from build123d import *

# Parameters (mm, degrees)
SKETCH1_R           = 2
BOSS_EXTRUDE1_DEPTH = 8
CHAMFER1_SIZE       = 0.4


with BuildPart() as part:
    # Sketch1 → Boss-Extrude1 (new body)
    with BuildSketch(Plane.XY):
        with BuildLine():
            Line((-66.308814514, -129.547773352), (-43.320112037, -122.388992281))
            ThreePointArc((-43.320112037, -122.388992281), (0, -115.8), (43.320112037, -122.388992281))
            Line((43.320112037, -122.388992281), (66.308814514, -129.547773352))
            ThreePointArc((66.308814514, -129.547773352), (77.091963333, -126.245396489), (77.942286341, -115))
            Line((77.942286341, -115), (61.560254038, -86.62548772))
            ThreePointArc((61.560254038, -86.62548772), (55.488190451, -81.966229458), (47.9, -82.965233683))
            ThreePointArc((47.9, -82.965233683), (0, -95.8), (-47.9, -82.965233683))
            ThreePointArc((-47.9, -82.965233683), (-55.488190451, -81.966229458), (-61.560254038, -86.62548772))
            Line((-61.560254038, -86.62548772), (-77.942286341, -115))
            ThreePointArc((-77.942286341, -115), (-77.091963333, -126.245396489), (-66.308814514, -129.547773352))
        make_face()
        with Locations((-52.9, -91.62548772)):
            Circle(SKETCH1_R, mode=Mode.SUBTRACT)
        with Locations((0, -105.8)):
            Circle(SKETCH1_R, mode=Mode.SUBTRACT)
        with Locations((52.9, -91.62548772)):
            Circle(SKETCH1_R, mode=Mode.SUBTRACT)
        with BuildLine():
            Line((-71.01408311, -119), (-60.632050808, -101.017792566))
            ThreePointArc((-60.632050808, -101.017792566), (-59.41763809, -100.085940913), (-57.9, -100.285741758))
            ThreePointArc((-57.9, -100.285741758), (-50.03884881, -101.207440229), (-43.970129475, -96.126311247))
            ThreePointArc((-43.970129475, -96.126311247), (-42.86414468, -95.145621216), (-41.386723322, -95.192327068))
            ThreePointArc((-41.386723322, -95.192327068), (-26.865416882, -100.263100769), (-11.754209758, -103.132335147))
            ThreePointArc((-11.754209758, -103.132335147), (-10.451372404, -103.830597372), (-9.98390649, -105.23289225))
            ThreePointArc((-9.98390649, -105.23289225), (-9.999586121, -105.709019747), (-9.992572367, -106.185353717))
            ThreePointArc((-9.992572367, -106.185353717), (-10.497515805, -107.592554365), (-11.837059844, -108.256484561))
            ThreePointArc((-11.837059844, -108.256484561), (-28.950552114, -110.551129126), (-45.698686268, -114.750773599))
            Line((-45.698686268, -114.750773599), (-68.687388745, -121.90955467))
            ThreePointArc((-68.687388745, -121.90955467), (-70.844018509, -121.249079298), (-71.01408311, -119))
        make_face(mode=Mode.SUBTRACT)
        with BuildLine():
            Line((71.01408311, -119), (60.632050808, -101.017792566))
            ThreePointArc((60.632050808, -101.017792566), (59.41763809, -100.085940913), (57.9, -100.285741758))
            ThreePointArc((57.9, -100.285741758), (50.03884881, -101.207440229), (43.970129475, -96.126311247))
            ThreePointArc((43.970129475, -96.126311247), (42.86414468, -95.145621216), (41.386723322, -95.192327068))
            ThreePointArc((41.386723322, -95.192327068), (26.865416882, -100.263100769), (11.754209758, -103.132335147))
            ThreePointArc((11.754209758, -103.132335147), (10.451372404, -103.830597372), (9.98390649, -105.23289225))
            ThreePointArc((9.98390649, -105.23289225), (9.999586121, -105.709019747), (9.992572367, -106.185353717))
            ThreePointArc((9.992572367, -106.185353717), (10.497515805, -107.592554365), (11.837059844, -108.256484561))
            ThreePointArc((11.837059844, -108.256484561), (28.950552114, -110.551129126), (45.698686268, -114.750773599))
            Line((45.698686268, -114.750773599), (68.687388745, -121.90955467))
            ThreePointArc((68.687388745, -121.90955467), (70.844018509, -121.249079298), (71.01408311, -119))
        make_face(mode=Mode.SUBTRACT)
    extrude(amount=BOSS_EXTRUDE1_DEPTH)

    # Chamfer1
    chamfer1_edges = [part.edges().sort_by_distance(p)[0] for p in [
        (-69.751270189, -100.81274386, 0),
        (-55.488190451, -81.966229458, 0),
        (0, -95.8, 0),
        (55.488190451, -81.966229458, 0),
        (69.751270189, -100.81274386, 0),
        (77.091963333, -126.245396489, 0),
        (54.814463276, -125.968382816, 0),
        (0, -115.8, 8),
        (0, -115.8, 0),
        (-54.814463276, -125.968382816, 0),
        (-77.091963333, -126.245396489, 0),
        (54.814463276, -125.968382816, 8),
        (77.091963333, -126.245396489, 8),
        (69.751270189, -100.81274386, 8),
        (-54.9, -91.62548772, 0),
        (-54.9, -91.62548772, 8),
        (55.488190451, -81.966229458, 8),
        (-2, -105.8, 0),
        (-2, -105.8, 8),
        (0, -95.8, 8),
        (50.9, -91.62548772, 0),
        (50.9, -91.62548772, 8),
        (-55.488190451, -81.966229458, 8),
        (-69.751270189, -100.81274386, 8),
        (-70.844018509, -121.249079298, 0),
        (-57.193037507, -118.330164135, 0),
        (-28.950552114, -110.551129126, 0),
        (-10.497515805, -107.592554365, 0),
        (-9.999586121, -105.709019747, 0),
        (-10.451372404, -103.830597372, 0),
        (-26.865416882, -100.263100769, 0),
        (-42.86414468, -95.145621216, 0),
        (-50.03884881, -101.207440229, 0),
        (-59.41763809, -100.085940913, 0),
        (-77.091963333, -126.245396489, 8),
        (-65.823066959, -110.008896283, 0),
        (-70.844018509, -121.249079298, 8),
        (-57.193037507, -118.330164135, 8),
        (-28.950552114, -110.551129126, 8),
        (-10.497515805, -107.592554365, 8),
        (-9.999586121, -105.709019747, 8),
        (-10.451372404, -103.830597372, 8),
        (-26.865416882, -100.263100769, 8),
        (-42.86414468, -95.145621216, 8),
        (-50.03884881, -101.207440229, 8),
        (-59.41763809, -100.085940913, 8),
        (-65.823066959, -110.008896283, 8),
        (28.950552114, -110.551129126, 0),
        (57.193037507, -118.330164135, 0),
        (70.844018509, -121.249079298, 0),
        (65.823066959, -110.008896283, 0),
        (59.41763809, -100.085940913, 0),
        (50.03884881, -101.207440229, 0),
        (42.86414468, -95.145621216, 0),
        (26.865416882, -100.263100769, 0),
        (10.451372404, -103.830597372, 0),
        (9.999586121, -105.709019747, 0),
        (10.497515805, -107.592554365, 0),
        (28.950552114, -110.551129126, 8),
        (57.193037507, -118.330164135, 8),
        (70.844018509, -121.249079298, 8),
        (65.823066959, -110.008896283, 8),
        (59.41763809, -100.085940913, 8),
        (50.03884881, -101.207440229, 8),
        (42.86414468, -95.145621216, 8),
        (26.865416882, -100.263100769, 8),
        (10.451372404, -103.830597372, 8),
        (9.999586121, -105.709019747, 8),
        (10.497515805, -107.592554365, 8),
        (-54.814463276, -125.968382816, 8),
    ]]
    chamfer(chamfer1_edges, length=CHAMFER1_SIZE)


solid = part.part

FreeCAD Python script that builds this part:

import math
import FreeCAD as App
import Part
import Sketcher

V = App.Vector
Q = App.Units.Quantity


def edges_at(feature, points):
    """Names of the edges that pass closest to the given points."""
    edges = feature.Shape.Edges
    near = lambda p: min(range(len(edges)), key=lambda i: edges[i].distToShape(Part.Vertex(*p))[0])
    return sorted({f"Edge{near(p) + 1}" for p in points})

doc = App.newDocument("Part")
body = doc.addObject("PartDesign::Body", "Body")

# Sketch on XY plane
sketch1 = body.newObject("Sketcher::SketchObject", "Sketch")
sketch1.AttachmentSupport = (doc.getObject("XY_Plane"), [""])
sketch1.MapMode = "FlatFace"
sketch1.addGeometry([
    Part.LineSegment(V(-66.3, -129.5, 0), V(-43.3, -122.4, 0)),  # 0
    Part.ArcOfCircle(Part.Circle(V(0, -261.5, 0), V(0, 0, 1), 145.7), math.radians(73), math.radians(107)),  # 1
    Part.LineSegment(V(43.3, -122.4, 0), V(66.3, -129.5, 0)),  # 2
    Part.ArcOfCircle(Part.Circle(V(69.3, -120, 0), V(0, 0, 1), 10), math.radians(-107), math.radians(30)),  # 3
    Part.LineSegment(V(77.9, -115, 0), V(61.6, -86.6, 0)),  # 4
    Part.ArcOfCircle(Part.Circle(V(52.9, -91.6, 0), V(0, 0, 1), 10), math.radians(30), math.radians(120)),  # 5
    Part.ArcOfCircle(Part.Circle(V(0, 0, 0), V(0, 0, 1), 95.8), math.radians(-120), math.radians(-60)),  # 6
    Part.ArcOfCircle(Part.Circle(V(-52.9, -91.6, 0), V(0, 0, 1), 10), math.radians(60), math.radians(150)),  # 7
    Part.LineSegment(V(-61.6, -86.6, 0), V(-77.9, -115, 0)),  # 8
    Part.ArcOfCircle(Part.Circle(V(-69.3, -120, 0), V(0, 0, 1), 10), math.radians(150), math.radians(287)),  # 9
    Part.ArcOfCircle(Part.Circle(V(-69.3, -120, 0), V(0, 0, 1), 2), math.radians(150), math.radians(287)),  # 10
    Part.LineSegment(V(-71, -119, 0), V(-60.6, -101, 0)),  # 11
    Part.ArcOfCircle(Part.Circle(V(-58.9, -102, 0), V(0, 0, 1), 2), math.radians(60), math.radians(150)),  # 12
    Part.ArcOfCircle(Part.Circle(V(-52.9, -91.6, 0), V(0, 0, 1), 10), math.radians(-120), math.radians(-27)),  # 13
    Part.ArcOfCircle(Part.Circle(V(-42.2, -97, 0), V(0, 0, 1), 2), math.radians(67), math.radians(153)),  # 14
    Part.ArcOfCircle(Part.Circle(V(0, 0, 0), V(0, 0, 1), 103.8), math.radians(-113.5), math.radians(-96.5)),  # 15
    Part.ArcOfCircle(Part.Circle(V(-12, -105.1, 0), V(0, 0, 1), 2), math.radians(-3), math.radians(83)),  # 16
    Part.ArcOfCircle(Part.Circle(V(0, -105.8, 0), V(0, 0, 1), 10), math.radians(176.75), math.radians(182.21)),  # 17
    Part.ArcOfCircle(Part.Circle(V(-12, -106.3, 0), V(0, 0, 1), 2), math.radians(-86), math.radians(2)),  # 18
    Part.ArcOfCircle(Part.Circle(V(0, -261.5, 0), V(0, 0, 1), 153.7), math.radians(94.42), math.radians(107.3)),  # 19
    Part.LineSegment(V(-45.7, -114.8, 0), V(-68.7, -121.9, 0)),  # 20
    Part.LineSegment(V(60.6, -101, 0), V(71, -119, 0)),  # 21
    Part.ArcOfCircle(Part.Circle(V(69.3, -120, 0), V(0, 0, 1), 2), math.radians(-107), math.radians(30)),  # 22
    Part.LineSegment(V(68.7, -121.9, 0), V(45.7, -114.8, 0)),  # 23
    Part.ArcOfCircle(Part.Circle(V(0, -261.5, 0), V(0, 0, 1), 153.7), math.radians(72.7), math.radians(85.58)),  # 24
    Part.ArcOfCircle(Part.Circle(V(12, -106.3, 0), V(0, 0, 1), 2), math.radians(178), math.radians(266)),  # 25
    Part.ArcOfCircle(Part.Circle(V(0, -105.8, 0), V(0, 0, 1), 10), math.radians(-2.21), math.radians(3.25)),  # 26
    Part.ArcOfCircle(Part.Circle(V(12, -105.1, 0), V(0, 0, 1), 2), math.radians(97), math.radians(183)),  # 27
    Part.ArcOfCircle(Part.Circle(V(0, 0, 0), V(0, 0, 1), 103.8), math.radians(-83.5), math.radians(-66.5)),  # 28
    Part.ArcOfCircle(Part.Circle(V(42.2, -97, 0), V(0, 0, 1), 2), math.radians(27), math.radians(113)),  # 29
    Part.ArcOfCircle(Part.Circle(V(52.9, -91.6, 0), V(0, 0, 1), 10), math.radians(-153), math.radians(-60)),  # 30
    Part.ArcOfCircle(Part.Circle(V(58.9, -102, 0), V(0, 0, 1), 2), math.radians(30), math.radians(120)),  # 31
    Part.Circle(V(-52.9, -91.6, 0), V(0, 0, 1), 2),  # 32
    Part.Circle(V(0, -105.8, 0), V(0, 0, 1), 2),  # 33
    Part.Circle(V(52.9, -91.6, 0), V(0, 0, 1), 2),  # 34
], False)
sketch1.addConstraint([
    Sketcher.Constraint("Tangent", 0, 2, 1, 2),
    Sketcher.Constraint("Tangent", 1, 1, 2, 1),
    Sketcher.Constraint("Tangent", 2, 2, 3, 1),
    Sketcher.Constraint("Tangent", 3, 2, 4, 1),
    Sketcher.Constraint("Tangent", 4, 2, 5, 1),
    Sketcher.Constraint("Tangent", 5, 2, 6, 2),
    Sketcher.Constraint("Tangent", 6, 1, 7, 1),
    Sketcher.Constraint("Tangent", 7, 2, 8, 1),
    Sketcher.Constraint("Tangent", 8, 2, 9, 1),
    Sketcher.Constraint("Tangent", 9, 2, 0, 1),
    Sketcher.Constraint("Tangent", 10, 1, 11, 1),
    Sketcher.Constraint("Tangent", 11, 2, 12, 2),
    Sketcher.Constraint("Tangent", 12, 1, 13, 1),
    Sketcher.Constraint("Tangent", 13, 2, 14, 2),
    Sketcher.Constraint("Tangent", 14, 1, 15, 1),
    Sketcher.Constraint("Tangent", 15, 2, 16, 2),
    Sketcher.Constraint("Tangent", 16, 1, 17, 1),
    Sketcher.Constraint("Tangent", 17, 2, 18, 2),
    Sketcher.Constraint("Tangent", 18, 1, 19, 1),
    Sketcher.Constraint("Tangent", 19, 2, 20, 1),
    Sketcher.Constraint("Tangent", 20, 2, 10, 2),
    Sketcher.Constraint("Tangent", 21, 2, 22, 2),
    Sketcher.Constraint("Tangent", 22, 1, 23, 1),
    Sketcher.Constraint("Tangent", 23, 2, 24, 1),
    Sketcher.Constraint("Tangent", 24, 2, 25, 2),
    Sketcher.Constraint("Tangent", 25, 1, 26, 1),
    Sketcher.Constraint("Tangent", 26, 2, 27, 2),
    Sketcher.Constraint("Tangent", 27, 1, 28, 1),
    Sketcher.Constraint("Tangent", 28, 2, 29, 2),
    Sketcher.Constraint("Tangent", 29, 1, 30, 1),
    Sketcher.Constraint("Tangent", 30, 2, 31, 2),
    Sketcher.Constraint("Tangent", 31, 1, 21, 1),
    Sketcher.Constraint("Coincident", 6, 3, -1, 1),
    Sketcher.Constraint("Coincident", 15, 3, -1, 1),
    Sketcher.Constraint("Coincident", 28, 3, -1, 1),
    Sketcher.Constraint("Coincident", 10, 3, 9, 3),
    Sketcher.Constraint("Coincident", 13, 3, 7, 3),
    Sketcher.Constraint("Coincident", 19, 3, 1, 3),
    Sketcher.Constraint("Coincident", 22, 3, 3, 3),
    Sketcher.Constraint("Coincident", 24, 3, 1, 3),
    Sketcher.Constraint("Coincident", 26, 3, 17, 3),
    Sketcher.Constraint("Coincident", 30, 3, 5, 3),
    Sketcher.Constraint("Coincident", 32, 3, 7, 3),
    Sketcher.Constraint("Coincident", 33, 3, 17, 3),
    Sketcher.Constraint("Coincident", 34, 3, 5, 3),
    Sketcher.Constraint("Equal", 3, 5),
    Sketcher.Constraint("Equal", 5, 7),
    Sketcher.Constraint("Equal", 7, 9),
    Sketcher.Constraint("Equal", 10, 12),
    Sketcher.Constraint("Equal", 9, 13),
    Sketcher.Constraint("Equal", 12, 14),
    Sketcher.Constraint("Equal", 14, 16),
    Sketcher.Constraint("Equal", 13, 17),
    Sketcher.Constraint("Equal", 16, 18),
    Sketcher.Constraint("Equal", 18, 22),
    Sketcher.Constraint("Equal", 19, 24),
    Sketcher.Constraint("Equal", 22, 25),
    Sketcher.Constraint("Equal", 17, 26),
    Sketcher.Constraint("Equal", 25, 27),
    Sketcher.Constraint("Equal", 15, 28),
    Sketcher.Constraint("Equal", 27, 29),
    Sketcher.Constraint("Equal", 26, 30),
    Sketcher.Constraint("Equal", 29, 31),
    Sketcher.Constraint("Equal", 31, 32),
    Sketcher.Constraint("Equal", 32, 33),
    Sketcher.Constraint("Equal", 33, 34),
    Sketcher.Constraint("Symmetric", 3, 3, 9, 3, -2),
    Sketcher.Constraint("Symmetric", 18, 3, 25, 3, -2),
    Sketcher.Constraint("Parallel", 8, 11),
    Sketcher.Constraint("Parallel", 0, 20),
    Sketcher.Constraint("Parallel", 4, 21),
    Sketcher.Constraint("Horizontal", 5, 3, 7, 3),
    Sketcher.Constraint("Diameter", 32, 4.0),
    Sketcher.Constraint("Radius", 3, 10.0),
    Sketcher.Constraint("Radius", 6, 95.8),
    Sketcher.Constraint("Radius", 15, 103.8),
    Sketcher.Constraint("Angle", 4, Q("120 deg")),
    Sketcher.Constraint("DistanceY", 3, 3, -1, 1, 120.0),
    Sketcher.Constraint("DistanceX", -1, 1, 5, 3, 52.9),
    Sketcher.Constraint("DistanceY", 17, 3, -1, 1, 105.8),
    Sketcher.Constraint("Radius", 1, 145.701106),
    Sketcher.Constraint("DistanceX", 18, 3, 16, 3, 0.010399),
])
pad1 = body.newObject("PartDesign::Pad", "Pad")
pad1.Profile = sketch1
pad1.Length = 8
doc.recompute()

chamfer = body.newObject("PartDesign::Chamfer", "Chamfer")
chamfer.Base = (pad1, edges_at(pad1, [
    (-69.751, -100.813, 0),
    (-55.488, -81.966, 0),
    (0, -95.8, 0),
    (55.488, -81.966, 0),
    (69.751, -100.813, 0),
    (77.092, -126.245, 0),
    (54.814, -125.968, 0),
    (0, -115.8, 8),
    (0, -115.8, 0),
    (-54.814, -125.968, 0),
    (-77.092, -126.245, 0),
    (54.814, -125.968, 8),
    (77.092, -126.245, 8),
    (69.751, -100.813, 8),
    (-54.9, -91.625, 0),
    (-54.9, -91.625, 8),
    (55.488, -81.966, 8),
    (-2, -105.8, 0),
    (-2, -105.8, 8),
    (0, -95.8, 8),
    (50.9, -91.625, 0),
    (50.9, -91.625, 8),
    (-55.488, -81.966, 8),
    (-69.751, -100.813, 8),
    (-70.844, -121.249, 0),
    (-57.193, -118.33, 0),
    (-28.951, -110.551, 0),
    (-10.498, -107.593, 0),
    (-10, -105.709, 0),
    (-10.451, -103.831, 0),
    (-26.865, -100.263, 0),
    (-42.864, -95.146, 0),
    (-50.039, -101.207, 0),
    (-59.418, -100.086, 0),
    (-77.092, -126.245, 8),
    (-65.823, -110.009, 0),
    (-70.844, -121.249, 8),
    (-57.193, -118.33, 8),
    (-28.951, -110.551, 8),
    (-10.498, -107.593, 8),
    (-10, -105.709, 8),
    (-10.451, -103.831, 8),
    (-26.865, -100.263, 8),
    (-42.864, -95.146, 8),
    (-50.039, -101.207, 8),
    (-59.418, -100.086, 8),
    (-65.823, -110.009, 8),
    (28.951, -110.551, 0),
    (57.193, -118.33, 0),
    (70.844, -121.249, 0),
    (65.823, -110.009, 0),
    (59.418, -100.086, 0),
    (50.039, -101.207, 0),
    (42.864, -95.146, 0),
    (26.865, -100.263, 0),
    (10.451, -103.831, 0),
    (10, -105.709, 0),
    (10.498, -107.593, 0),
    (28.951, -110.551, 8),
    (57.193, -118.33, 8),
    (70.844, -121.249, 8),
    (65.823, -110.009, 8),
    (59.418, -100.086, 8),
    (50.039, -101.207, 8),
    (42.864, -95.146, 8),
    (26.865, -100.263, 8),
    (10.451, -103.831, 8),
    (10, -105.709, 8),
    (10.498, -107.593, 8),
    (-54.814, -125.968, 8),
]))
chamfer.Size = 0.4

doc.recompute()
